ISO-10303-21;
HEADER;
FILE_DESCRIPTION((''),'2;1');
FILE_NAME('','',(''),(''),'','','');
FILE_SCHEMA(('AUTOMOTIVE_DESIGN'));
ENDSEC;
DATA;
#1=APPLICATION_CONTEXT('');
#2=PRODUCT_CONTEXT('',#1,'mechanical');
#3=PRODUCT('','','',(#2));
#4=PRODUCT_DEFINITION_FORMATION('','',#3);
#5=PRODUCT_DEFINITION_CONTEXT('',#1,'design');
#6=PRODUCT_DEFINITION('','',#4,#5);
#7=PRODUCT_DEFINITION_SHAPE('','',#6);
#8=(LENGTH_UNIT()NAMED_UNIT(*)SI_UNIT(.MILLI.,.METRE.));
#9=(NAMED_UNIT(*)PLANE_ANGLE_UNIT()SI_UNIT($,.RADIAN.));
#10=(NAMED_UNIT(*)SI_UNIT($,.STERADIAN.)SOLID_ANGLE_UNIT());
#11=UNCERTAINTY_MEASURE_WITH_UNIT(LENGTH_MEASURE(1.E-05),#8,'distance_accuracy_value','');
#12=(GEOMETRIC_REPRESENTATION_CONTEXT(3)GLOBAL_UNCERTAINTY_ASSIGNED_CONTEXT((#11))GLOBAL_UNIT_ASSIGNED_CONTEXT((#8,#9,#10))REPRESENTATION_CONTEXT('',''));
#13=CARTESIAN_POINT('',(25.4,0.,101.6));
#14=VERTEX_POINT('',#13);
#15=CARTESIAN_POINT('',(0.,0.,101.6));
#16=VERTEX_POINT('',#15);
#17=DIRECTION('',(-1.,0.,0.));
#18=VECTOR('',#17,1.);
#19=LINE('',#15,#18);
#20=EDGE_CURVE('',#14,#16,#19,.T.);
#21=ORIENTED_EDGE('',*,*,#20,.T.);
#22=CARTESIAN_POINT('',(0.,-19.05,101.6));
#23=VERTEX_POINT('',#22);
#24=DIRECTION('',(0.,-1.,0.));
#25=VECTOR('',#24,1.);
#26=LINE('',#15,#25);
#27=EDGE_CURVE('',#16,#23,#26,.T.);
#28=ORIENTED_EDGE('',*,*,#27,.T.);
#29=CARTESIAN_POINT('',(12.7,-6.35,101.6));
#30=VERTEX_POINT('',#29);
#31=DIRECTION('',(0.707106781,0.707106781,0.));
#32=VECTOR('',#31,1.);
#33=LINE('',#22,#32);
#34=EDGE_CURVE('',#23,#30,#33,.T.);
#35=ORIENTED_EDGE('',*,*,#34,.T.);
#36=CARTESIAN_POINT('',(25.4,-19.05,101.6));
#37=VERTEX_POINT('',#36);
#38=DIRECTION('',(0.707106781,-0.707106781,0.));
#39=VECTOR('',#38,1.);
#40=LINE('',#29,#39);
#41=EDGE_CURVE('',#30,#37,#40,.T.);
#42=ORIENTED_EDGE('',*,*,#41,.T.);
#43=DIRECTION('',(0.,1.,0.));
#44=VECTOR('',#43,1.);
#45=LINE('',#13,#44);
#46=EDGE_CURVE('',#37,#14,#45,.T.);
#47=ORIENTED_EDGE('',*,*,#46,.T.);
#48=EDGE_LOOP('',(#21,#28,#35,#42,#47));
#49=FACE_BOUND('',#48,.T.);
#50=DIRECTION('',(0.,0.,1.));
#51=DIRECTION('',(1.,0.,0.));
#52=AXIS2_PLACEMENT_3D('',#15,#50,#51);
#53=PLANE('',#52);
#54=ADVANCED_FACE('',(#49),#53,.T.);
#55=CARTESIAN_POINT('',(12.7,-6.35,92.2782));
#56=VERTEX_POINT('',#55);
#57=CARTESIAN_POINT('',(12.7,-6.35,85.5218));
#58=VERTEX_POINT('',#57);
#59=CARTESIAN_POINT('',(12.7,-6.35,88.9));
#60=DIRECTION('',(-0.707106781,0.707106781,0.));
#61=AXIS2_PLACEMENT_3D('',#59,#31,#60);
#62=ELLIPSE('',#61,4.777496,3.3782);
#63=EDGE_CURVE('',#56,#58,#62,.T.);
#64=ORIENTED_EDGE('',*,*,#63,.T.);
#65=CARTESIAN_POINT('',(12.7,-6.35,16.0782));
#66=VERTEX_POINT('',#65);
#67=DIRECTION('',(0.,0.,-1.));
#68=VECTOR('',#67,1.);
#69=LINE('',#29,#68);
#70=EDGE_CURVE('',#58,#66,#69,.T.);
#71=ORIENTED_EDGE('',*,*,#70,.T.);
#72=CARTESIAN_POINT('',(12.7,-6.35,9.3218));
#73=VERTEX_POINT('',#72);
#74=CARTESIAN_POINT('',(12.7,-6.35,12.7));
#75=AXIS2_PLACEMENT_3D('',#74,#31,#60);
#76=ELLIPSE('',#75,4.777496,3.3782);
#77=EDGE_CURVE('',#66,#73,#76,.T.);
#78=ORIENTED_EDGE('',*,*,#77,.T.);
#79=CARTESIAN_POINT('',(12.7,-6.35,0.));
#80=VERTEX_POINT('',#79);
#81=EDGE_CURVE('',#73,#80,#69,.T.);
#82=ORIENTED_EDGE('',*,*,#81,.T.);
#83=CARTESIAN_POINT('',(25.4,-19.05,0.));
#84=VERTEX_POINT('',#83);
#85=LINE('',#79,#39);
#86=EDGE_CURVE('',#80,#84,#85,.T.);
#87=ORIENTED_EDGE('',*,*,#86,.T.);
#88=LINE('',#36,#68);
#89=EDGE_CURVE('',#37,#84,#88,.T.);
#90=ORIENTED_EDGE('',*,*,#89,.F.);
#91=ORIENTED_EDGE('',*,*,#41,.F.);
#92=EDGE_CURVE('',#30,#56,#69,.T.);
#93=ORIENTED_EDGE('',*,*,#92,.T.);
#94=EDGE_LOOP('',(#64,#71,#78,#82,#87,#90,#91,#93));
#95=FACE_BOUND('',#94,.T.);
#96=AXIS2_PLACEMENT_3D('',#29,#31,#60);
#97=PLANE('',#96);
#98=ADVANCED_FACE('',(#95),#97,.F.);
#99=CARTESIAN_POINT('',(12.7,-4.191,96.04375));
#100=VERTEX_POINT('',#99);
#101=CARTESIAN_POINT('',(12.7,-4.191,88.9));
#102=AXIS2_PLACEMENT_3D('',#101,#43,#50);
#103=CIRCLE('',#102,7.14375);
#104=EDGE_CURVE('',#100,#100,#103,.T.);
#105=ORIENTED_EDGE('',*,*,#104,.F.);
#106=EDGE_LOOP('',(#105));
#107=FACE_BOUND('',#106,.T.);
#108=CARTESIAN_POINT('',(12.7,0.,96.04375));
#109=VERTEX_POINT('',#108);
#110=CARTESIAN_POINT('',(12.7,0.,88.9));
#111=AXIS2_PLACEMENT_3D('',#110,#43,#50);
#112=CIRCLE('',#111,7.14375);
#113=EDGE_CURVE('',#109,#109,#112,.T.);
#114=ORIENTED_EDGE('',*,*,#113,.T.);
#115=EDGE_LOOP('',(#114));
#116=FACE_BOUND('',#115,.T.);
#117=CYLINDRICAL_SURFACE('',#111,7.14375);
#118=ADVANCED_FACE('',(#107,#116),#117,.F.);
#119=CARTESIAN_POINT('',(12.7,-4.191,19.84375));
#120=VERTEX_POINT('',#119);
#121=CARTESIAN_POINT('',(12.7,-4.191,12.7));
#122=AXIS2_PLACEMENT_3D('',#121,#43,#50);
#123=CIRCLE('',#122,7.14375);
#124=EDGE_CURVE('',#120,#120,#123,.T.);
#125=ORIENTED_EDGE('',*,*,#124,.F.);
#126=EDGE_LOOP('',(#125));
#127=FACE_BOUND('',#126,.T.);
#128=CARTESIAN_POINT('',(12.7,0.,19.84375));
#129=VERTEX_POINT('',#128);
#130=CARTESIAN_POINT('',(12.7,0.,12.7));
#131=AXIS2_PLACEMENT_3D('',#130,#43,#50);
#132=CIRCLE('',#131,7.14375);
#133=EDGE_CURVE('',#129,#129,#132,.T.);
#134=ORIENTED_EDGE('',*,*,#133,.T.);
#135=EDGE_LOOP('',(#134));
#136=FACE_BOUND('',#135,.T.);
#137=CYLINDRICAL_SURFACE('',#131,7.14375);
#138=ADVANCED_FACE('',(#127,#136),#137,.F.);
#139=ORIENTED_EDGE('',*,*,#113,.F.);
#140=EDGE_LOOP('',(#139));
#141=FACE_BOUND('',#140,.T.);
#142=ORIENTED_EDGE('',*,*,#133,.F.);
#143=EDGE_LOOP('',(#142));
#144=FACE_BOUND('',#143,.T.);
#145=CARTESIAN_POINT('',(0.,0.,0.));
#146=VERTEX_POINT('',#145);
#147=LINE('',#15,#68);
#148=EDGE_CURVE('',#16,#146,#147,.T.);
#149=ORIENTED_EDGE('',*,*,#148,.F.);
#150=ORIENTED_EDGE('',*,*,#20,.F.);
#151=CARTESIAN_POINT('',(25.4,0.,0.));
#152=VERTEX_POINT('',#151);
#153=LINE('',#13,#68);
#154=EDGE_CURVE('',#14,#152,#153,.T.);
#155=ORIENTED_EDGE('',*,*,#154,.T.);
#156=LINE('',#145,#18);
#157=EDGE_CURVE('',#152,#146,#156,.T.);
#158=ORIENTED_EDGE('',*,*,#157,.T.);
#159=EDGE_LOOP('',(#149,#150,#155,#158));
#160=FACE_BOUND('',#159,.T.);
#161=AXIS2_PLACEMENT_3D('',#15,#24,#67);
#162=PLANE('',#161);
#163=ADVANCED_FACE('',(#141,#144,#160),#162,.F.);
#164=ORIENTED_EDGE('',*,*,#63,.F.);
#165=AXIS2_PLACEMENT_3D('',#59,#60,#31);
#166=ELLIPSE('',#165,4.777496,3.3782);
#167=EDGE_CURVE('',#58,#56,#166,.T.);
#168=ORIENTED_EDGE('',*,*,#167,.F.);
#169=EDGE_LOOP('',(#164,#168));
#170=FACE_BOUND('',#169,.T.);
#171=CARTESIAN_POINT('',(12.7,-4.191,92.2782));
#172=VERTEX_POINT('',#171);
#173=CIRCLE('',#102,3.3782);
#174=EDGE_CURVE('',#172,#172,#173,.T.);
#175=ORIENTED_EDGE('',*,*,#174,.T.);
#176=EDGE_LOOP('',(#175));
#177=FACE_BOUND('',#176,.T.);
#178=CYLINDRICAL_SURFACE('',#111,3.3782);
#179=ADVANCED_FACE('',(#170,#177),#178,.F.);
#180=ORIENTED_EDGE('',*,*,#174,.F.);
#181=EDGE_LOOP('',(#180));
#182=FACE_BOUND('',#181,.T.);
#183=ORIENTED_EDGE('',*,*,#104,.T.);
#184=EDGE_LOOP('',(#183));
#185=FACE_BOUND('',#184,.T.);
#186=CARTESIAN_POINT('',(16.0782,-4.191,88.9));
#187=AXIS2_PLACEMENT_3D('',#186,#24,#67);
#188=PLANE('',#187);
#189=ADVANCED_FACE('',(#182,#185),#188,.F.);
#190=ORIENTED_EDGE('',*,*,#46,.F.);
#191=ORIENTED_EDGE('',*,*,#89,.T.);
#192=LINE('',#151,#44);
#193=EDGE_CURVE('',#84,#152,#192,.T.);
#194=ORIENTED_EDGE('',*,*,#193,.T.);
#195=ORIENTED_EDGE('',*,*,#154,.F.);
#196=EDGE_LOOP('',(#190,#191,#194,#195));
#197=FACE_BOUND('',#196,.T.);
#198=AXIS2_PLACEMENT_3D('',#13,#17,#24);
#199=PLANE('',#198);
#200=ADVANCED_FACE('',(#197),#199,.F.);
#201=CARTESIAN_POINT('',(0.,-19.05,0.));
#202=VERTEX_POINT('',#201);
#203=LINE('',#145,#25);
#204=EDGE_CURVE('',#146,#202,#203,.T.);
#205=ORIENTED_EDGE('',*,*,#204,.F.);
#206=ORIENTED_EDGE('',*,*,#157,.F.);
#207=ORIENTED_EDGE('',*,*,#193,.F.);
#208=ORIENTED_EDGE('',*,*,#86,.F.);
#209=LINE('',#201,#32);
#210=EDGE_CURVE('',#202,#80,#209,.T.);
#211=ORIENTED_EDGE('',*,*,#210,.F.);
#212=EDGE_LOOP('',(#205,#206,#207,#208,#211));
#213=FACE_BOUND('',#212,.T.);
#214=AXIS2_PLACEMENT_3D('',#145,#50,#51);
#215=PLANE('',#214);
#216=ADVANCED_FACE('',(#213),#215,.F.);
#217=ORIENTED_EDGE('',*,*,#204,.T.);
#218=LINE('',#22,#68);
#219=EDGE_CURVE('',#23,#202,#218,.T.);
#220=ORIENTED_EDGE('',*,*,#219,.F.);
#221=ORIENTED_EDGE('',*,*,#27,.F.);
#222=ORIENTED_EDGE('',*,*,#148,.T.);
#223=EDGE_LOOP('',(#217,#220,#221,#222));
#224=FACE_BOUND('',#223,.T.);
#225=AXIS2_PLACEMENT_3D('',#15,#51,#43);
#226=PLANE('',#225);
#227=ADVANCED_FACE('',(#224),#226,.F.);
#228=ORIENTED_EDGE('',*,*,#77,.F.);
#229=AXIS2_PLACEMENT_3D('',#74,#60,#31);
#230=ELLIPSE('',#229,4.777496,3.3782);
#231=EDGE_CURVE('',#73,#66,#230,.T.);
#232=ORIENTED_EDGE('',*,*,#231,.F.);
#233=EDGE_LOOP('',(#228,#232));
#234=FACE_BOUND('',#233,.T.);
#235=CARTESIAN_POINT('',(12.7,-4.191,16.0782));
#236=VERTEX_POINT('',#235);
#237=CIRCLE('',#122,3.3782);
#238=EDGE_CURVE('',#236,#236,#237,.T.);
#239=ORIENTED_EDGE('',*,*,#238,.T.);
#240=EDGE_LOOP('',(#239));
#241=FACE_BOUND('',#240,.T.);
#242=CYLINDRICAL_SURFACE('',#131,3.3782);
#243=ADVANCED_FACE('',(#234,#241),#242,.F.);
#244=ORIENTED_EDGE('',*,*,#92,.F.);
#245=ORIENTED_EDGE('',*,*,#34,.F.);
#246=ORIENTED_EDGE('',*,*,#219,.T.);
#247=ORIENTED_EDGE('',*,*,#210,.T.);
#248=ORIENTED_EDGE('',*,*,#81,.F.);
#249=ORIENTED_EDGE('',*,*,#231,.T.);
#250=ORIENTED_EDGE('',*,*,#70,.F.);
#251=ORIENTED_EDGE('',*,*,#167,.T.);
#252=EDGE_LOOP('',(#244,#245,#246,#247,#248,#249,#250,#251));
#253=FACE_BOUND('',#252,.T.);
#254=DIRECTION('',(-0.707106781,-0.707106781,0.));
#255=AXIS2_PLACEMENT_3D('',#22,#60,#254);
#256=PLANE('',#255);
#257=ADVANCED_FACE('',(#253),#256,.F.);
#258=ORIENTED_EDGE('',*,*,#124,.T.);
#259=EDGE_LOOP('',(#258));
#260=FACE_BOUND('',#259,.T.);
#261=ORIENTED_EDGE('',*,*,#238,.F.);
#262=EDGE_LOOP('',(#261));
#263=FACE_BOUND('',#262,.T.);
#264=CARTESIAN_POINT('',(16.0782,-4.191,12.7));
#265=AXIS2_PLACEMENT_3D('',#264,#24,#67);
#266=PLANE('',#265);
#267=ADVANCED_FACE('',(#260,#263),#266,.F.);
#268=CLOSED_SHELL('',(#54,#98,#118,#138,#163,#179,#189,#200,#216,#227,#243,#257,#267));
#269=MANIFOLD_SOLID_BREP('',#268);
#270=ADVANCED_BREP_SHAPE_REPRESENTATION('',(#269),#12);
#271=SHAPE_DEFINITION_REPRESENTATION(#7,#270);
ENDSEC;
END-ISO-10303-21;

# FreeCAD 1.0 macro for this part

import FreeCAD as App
import Part
import Sketcher
from FreeCAD import Vector
Q = App.Units.Quantity


def add_polygon(sketch, points):
    """Adds a closed chain of lines whose ends are joined by coincident constraints."""
    first, n = sketch.GeometryCount, len(points)
    for a, b in zip(points, points[1:] + points[:1]):
        sketch.addGeometry(Part.LineSegment(App.Vector(*a, 0), App.Vector(*b, 0)), False)
    for i in range(n):
        sketch.addConstraint(Sketcher.Constraint("Coincident", first + i, 2, first + (i + 1) % n, 1))

doc = App.newDocument("Part")
body = doc.addObject("PartDesign::Body", "Body")

# Sketch on XY plane
sketch1 = body.newObject("Sketcher::SketchObject", "Sketch")
sketch1.AttachmentSupport = (doc.getObject("XY_Plane"), [""])
sketch1.MapMode = "FlatFace"
add_polygon(sketch1, [(0, -19), (13, -6), (25, -19), (25, 0), (0, 0)])  # lines 0-4
sketch1.addConstraint([
    Sketcher.Constraint("Vertical", 2),
    Sketcher.Constraint("Horizontal", 3),
    Sketcher.Constraint("Vertical", 4),
    Sketcher.Constraint("Coincident", 3, 2, -1, 1),
    Sketcher.Constraint("Perpendicular", 0, 1),
    Sketcher.Constraint("Horizontal", 1, 2, 4, 2),
    Sketcher.Constraint("Equal", 0, 1),
    Sketcher.Constraint("DistanceX", 3, 2, 3, 1, Q("1 in")),
    Sketcher.Constraint("DistanceY", 2, 1, 2, 2, Q("0.75 in")),
])
pad1 = body.newObject("PartDesign::Pad", "Pad")
pad1.Profile = sketch1
pad1.Length = Q("4 in")

# Sketch on XZ plane
sketch2 = body.newObject("Sketcher::SketchObject", "Sketch001")
sketch2.AttachmentSupport = (doc.getObject("XZ_Plane"), [""])
sketch2.MapMode = "FlatFace"
sketch2.addGeometry([
    Part.Circle(Vector(12.7, 88.9, 0), Vector(0, 0, 1), 3.4),
    Part.Circle(Vector(12.7, 12.7, 0), Vector(0, 0, 1), 3.4),
], False)
sketch2.addConstraint([
    Sketcher.Constraint("Equal", 0, 1),
    Sketcher.Constraint("Vertical", 0, 3, 1, 3),
    Sketcher.Constraint("Diameter", 0, Q("0.266 in")),
    Sketcher.Constraint("DistanceY", 1, 3, 0, 3, Q("3 in")),
    Sketcher.Constraint("DistanceX", -1, 1, 0, 3, Q("0.5 in")),
    Sketcher.Constraint("DistanceY", -1, 1, 0, 3, Q("3.5 in")),
])
doc.recompute()
hole = body.newObject("PartDesign::Hole", "Hole")
hole.Profile = sketch2
hole.ThreadType = "None"
hole.Diameter = Q("0.266 in")
hole.DepthType = "ThroughAll"
hole.HoleCutType = "Counterbore"
hole.HoleCutDiameter = Q("0.5625 in")
hole.HoleCutDepth = Q("0.165 in")
hole.Reversed = True

doc.recompute()
